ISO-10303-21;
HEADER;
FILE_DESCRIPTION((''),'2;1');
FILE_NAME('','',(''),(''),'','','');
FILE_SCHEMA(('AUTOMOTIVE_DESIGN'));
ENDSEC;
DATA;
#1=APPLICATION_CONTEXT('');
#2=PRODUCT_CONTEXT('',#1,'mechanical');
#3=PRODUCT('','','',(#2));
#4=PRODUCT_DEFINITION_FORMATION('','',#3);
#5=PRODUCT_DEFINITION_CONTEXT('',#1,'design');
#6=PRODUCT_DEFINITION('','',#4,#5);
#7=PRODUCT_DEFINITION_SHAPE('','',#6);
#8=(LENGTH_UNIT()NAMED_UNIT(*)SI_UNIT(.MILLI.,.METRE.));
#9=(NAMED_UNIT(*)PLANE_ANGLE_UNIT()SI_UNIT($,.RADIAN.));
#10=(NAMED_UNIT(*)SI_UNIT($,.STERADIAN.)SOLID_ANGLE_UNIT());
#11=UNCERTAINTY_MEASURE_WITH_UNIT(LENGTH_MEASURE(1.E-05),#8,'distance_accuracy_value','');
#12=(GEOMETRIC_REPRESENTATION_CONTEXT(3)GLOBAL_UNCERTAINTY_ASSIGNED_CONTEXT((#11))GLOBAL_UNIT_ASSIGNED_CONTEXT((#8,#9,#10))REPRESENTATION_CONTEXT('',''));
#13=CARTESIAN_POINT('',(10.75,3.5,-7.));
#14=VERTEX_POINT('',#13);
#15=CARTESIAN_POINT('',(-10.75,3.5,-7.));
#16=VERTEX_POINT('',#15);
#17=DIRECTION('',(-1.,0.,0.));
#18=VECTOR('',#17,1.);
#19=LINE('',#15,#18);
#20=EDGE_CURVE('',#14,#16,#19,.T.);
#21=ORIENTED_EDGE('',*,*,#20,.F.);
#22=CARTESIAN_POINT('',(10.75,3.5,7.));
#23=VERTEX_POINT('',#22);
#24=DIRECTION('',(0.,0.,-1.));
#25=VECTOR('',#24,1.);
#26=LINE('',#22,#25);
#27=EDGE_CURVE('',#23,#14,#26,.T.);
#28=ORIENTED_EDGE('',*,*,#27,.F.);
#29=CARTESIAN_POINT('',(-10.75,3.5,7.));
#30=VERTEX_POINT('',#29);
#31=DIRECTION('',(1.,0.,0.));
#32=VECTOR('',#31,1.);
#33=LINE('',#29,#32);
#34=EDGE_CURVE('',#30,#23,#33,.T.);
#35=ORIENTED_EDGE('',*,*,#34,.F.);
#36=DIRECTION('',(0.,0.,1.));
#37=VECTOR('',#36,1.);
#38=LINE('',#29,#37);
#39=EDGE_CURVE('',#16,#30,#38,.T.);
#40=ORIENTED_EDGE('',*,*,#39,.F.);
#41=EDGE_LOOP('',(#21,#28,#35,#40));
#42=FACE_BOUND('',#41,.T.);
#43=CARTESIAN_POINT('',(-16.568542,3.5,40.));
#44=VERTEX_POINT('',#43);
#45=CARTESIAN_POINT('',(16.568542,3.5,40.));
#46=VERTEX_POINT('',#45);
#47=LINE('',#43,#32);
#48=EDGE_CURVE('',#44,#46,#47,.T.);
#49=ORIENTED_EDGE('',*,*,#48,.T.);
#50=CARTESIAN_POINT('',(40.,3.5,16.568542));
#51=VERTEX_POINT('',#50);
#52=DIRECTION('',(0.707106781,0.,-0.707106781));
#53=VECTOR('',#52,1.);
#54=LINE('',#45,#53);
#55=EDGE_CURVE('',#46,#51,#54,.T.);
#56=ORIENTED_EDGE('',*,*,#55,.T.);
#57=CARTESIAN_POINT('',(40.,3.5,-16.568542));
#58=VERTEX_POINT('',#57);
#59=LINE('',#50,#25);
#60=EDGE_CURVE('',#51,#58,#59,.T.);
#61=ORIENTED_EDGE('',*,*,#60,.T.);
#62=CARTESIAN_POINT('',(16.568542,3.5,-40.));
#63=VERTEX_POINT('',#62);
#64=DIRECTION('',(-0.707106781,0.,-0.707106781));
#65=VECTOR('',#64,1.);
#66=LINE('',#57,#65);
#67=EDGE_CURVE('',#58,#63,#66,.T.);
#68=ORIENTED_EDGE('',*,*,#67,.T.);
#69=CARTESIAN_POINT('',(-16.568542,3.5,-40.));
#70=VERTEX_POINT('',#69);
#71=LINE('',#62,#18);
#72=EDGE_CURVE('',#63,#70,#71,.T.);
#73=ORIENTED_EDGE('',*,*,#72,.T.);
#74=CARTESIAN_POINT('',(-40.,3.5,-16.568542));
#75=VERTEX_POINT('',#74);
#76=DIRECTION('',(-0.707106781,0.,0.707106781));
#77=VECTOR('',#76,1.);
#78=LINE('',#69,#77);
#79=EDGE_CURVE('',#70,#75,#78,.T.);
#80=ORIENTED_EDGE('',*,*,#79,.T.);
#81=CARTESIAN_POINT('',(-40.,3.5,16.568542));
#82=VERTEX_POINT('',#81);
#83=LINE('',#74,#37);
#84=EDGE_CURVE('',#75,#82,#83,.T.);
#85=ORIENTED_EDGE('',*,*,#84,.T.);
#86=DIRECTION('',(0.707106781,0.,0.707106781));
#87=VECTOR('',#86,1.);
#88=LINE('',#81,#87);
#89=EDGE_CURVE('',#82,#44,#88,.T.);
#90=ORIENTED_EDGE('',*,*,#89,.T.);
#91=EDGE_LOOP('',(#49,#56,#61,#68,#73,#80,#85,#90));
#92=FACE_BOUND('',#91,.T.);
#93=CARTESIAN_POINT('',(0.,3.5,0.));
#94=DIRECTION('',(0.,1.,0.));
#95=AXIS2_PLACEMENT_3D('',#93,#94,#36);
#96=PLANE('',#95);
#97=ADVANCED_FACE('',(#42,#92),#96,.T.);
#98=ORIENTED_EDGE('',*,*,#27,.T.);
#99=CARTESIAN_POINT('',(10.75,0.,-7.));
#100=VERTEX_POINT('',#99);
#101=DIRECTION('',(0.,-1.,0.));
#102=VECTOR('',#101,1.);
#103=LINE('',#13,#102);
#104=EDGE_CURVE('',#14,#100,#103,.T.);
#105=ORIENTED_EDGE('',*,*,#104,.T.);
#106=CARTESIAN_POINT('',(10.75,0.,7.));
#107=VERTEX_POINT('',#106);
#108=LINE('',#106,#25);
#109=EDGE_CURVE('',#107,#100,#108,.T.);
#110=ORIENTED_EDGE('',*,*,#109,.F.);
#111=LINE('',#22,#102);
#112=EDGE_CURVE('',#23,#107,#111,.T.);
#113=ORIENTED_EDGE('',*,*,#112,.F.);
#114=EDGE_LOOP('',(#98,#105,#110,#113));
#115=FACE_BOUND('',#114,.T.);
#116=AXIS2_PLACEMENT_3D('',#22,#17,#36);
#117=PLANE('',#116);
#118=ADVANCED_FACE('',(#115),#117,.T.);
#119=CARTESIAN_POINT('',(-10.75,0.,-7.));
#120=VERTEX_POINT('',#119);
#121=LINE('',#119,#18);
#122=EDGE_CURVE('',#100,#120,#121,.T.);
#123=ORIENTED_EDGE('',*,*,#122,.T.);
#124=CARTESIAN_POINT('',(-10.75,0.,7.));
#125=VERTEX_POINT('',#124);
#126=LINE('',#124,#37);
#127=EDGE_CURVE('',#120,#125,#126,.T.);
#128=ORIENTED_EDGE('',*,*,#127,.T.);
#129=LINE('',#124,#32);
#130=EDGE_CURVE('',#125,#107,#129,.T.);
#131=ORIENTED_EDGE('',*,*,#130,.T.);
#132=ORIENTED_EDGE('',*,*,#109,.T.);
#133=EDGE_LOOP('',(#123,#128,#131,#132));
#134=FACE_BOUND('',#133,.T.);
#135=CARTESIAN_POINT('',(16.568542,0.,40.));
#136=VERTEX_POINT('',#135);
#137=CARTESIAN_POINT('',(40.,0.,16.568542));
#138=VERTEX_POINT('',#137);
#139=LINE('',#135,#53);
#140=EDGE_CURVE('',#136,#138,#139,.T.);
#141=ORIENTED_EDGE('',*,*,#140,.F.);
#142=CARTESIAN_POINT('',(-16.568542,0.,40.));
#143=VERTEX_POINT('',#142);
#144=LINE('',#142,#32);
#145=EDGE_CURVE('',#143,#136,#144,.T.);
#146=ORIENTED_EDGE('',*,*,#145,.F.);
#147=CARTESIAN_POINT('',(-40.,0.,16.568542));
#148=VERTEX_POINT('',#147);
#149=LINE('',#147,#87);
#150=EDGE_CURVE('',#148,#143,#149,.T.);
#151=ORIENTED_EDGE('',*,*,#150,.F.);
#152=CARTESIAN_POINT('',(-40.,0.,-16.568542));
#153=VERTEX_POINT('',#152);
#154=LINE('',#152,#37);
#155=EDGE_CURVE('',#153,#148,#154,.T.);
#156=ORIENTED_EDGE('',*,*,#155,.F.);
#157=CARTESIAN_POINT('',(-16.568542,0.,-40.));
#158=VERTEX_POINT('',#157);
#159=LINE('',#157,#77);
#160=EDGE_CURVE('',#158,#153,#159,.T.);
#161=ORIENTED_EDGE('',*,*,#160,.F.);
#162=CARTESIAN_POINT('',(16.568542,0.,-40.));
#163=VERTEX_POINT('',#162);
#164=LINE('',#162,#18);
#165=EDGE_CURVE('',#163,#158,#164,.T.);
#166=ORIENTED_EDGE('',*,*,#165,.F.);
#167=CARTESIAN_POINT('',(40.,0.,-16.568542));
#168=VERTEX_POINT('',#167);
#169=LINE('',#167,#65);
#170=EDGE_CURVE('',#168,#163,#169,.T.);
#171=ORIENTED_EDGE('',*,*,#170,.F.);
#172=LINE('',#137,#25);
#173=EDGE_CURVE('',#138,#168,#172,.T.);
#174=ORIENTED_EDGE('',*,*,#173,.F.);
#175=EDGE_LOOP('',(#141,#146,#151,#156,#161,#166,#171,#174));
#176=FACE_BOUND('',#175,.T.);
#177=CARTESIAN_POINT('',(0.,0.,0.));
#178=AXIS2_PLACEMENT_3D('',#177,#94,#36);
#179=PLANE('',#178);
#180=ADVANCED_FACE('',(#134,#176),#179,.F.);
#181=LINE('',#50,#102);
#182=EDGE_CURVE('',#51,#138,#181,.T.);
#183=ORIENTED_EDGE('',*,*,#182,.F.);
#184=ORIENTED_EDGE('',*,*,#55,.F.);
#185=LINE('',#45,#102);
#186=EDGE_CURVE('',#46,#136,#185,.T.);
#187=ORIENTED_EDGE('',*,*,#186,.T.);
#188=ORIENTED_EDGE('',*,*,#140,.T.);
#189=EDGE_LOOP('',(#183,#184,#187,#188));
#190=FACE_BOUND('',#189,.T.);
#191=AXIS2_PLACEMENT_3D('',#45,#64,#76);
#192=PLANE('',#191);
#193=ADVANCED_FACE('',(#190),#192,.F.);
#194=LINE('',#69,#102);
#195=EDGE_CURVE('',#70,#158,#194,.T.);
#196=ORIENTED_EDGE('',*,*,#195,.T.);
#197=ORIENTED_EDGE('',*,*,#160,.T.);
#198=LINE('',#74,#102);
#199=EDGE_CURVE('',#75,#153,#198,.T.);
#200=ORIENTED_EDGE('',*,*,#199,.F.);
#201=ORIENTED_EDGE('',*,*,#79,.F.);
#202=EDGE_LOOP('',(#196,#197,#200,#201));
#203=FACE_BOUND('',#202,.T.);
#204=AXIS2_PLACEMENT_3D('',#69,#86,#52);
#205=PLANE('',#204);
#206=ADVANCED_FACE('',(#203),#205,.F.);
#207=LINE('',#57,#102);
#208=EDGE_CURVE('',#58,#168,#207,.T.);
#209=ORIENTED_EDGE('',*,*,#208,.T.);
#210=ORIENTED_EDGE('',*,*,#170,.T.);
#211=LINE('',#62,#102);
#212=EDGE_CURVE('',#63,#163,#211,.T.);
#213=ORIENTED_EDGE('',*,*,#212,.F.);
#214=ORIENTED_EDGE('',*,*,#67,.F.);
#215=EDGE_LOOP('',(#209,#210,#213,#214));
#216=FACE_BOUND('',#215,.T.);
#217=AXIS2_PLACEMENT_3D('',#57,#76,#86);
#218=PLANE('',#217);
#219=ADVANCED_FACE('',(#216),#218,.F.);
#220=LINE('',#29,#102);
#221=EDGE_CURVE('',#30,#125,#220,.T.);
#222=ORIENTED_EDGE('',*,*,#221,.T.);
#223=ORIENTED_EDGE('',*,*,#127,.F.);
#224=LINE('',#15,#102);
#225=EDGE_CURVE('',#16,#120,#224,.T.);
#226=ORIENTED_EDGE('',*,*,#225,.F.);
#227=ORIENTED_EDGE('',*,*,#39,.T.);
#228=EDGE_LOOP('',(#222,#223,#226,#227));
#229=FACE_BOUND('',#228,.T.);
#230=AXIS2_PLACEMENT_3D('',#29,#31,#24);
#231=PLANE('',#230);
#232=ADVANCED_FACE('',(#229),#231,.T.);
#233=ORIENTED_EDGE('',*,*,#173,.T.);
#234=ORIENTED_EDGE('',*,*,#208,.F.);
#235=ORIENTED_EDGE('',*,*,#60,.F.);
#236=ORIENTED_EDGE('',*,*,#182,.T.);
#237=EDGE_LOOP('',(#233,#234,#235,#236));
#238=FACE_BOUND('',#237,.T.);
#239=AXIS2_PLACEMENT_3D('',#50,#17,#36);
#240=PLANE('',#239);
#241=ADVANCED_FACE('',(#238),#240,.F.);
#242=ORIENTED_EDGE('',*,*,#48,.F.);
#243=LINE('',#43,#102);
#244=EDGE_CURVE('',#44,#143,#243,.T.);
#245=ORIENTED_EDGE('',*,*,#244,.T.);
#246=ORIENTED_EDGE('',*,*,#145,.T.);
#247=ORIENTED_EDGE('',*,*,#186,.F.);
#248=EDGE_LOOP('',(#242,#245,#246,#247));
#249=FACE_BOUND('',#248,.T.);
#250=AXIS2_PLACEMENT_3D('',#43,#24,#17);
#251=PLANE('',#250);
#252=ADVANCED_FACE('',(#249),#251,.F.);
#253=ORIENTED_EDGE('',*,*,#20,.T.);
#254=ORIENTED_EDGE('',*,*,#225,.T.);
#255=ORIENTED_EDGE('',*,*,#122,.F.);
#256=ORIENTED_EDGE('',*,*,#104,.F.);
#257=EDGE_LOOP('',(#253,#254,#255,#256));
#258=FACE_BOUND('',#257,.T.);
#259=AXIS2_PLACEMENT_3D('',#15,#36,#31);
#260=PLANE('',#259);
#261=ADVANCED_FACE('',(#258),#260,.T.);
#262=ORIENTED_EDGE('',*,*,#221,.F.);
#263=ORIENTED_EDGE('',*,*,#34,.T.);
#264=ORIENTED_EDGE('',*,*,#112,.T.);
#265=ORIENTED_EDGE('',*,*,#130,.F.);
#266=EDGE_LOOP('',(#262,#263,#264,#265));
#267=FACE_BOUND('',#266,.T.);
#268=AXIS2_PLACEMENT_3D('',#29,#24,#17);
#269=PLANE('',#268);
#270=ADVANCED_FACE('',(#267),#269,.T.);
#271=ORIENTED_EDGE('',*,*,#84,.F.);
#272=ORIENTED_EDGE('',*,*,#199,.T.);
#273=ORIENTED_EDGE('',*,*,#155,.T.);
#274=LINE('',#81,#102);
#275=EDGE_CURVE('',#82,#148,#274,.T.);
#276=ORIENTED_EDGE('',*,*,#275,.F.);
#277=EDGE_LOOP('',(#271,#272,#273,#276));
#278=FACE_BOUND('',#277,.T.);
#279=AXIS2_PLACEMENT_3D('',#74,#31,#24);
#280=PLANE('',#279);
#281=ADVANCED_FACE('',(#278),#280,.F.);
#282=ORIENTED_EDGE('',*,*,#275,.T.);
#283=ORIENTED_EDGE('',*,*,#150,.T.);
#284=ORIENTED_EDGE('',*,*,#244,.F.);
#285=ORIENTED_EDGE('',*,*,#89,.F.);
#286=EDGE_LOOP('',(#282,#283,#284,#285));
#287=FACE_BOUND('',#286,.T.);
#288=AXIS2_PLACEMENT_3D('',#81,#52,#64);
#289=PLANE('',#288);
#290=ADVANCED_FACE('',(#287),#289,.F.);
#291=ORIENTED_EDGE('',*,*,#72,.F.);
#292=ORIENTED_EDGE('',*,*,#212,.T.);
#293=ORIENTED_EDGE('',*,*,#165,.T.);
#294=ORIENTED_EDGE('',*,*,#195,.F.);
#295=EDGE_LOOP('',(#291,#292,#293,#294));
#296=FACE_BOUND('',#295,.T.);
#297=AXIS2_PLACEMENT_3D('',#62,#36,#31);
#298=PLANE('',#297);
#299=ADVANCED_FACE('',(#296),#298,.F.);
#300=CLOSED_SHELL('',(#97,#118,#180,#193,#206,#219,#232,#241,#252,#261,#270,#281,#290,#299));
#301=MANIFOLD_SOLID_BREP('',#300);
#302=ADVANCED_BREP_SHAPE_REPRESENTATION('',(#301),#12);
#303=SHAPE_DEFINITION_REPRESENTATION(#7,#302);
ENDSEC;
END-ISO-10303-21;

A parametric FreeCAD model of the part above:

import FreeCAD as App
import Part
import Sketcher
Q = App.Units.Quantity


def add_polygon(sketch, points):
    """Adds a closed chain of lines whose ends are joined by coincident constraints."""
    first, n = sketch.GeometryCount, len(points)
    for a, b in zip(points, points[1:] + points[:1]):
        sketch.addGeometry(Part.LineSegment(App.Vector(*a, 0), App.Vector(*b, 0)), False)
    for i in range(n):
        sketch.addConstraint(Sketcher.Constraint("Coincident", first + i, 2, first + (i + 1) % n, 1))

doc = App.newDocument("Part")
params = doc.addObject("Spreadsheet::Sheet", "Params")
for row, (alias, value) in enumerate([
    ("sketch1_height", "14 mm"),
    ("sketch1_width", "21.5 mm"),
    ("pad1_length", "3.5 mm"),
], start=1):
    params.set(f"A{row}", alias)
    params.set(f"B{row}", "=" + value)
    params.setAlias(f"B{row}", alias)

body = doc.addObject("PartDesign::Body", "Body")

sketch1 = body.newObject("Sketcher::SketchObject", "Sketch")
sketch1.AttachmentSupport = (doc.getObject("XZ_Plane"), [""])
sketch1.MapMode = "FlatFace"
add_polygon(sketch1, [(40, -17), (17, -40), (-17, -40), (-40, -17), (-40, 17), (-17, 40), (17, 40), (40, 17)])
add_polygon(sketch1, [(11, 7), (-11, 7), (-11, -7), (11, -7)])
sketch1.addConstraint(Sketcher.Constraint("Horizontal", 1))
sketch1.addConstraint(Sketcher.Constraint("Vertical", 3))
sketch1.addConstraint(Sketcher.Constraint("Horizontal", 5))
sketch1.addConstraint(Sketcher.Constraint("Vertical", 7))
sketch1.addConstraint(Sketcher.Constraint("Horizontal", 8))
sketch1.addConstraint(Sketcher.Constraint("Vertical", 9))
sketch1.addConstraint(Sketcher.Constraint("Horizontal", 10))
sketch1.addConstraint(Sketcher.Constraint("Vertical", 11))
sketch1.addConstraint(Sketcher.Constraint("Symmetric", 0, 2, 4, 2, -1, 1))
sketch1.addConstraint(Sketcher.Constraint("Symmetric", 2, 2, 6, 2, -1, 1))
sketch1.addConstraint(Sketcher.Constraint("Symmetric", 8, 2, 10, 2, -1, 1))
sketch1.addConstraint(Sketcher.Constraint("Perpendicular", 0, 2))
sketch1.addConstraint(Sketcher.Constraint("Perpendicular", 2, 4))
sketch1.addConstraint(Sketcher.Constraint("Perpendicular", 4, 6))
sketch1.addConstraint(Sketcher.Constraint("Horizontal", 3, 2, 6, 2))
sketch1.addConstraint(Sketcher.Constraint("Vertical", 1, 2, 4, 2))
sketch1.addConstraint(Sketcher.Constraint("Equal", 5, 3))
sketch1.addConstraint(Sketcher.Constraint("DistanceY", 9, 2, 9, 1, Q("14 mm")))
sketch1.addConstraint(Sketcher.Constraint("DistanceX", 8, 2, 8, 1, Q("21.5 mm")))
sketch1.addConstraint(Sketcher.Constraint("DistanceY", 0, 2, -1, 1, Q("40 mm")))
sketch1.addConstraint(Sketcher.Constraint("DistanceX", 1, 2, 1, 1, Q("33.137085 mm")))
sketch1.setExpression("Constraints[29]", "Params.sketch1_height")
sketch1.setExpression("Constraints[30]", "Params.sketch1_width")
pad1 = body.newObject("PartDesign::Pad", "Pad")
pad1.Profile = sketch1
pad1.setExpression("Length", "Params.pad1_length")
pad1.Reversed = True

doc.recompute()
